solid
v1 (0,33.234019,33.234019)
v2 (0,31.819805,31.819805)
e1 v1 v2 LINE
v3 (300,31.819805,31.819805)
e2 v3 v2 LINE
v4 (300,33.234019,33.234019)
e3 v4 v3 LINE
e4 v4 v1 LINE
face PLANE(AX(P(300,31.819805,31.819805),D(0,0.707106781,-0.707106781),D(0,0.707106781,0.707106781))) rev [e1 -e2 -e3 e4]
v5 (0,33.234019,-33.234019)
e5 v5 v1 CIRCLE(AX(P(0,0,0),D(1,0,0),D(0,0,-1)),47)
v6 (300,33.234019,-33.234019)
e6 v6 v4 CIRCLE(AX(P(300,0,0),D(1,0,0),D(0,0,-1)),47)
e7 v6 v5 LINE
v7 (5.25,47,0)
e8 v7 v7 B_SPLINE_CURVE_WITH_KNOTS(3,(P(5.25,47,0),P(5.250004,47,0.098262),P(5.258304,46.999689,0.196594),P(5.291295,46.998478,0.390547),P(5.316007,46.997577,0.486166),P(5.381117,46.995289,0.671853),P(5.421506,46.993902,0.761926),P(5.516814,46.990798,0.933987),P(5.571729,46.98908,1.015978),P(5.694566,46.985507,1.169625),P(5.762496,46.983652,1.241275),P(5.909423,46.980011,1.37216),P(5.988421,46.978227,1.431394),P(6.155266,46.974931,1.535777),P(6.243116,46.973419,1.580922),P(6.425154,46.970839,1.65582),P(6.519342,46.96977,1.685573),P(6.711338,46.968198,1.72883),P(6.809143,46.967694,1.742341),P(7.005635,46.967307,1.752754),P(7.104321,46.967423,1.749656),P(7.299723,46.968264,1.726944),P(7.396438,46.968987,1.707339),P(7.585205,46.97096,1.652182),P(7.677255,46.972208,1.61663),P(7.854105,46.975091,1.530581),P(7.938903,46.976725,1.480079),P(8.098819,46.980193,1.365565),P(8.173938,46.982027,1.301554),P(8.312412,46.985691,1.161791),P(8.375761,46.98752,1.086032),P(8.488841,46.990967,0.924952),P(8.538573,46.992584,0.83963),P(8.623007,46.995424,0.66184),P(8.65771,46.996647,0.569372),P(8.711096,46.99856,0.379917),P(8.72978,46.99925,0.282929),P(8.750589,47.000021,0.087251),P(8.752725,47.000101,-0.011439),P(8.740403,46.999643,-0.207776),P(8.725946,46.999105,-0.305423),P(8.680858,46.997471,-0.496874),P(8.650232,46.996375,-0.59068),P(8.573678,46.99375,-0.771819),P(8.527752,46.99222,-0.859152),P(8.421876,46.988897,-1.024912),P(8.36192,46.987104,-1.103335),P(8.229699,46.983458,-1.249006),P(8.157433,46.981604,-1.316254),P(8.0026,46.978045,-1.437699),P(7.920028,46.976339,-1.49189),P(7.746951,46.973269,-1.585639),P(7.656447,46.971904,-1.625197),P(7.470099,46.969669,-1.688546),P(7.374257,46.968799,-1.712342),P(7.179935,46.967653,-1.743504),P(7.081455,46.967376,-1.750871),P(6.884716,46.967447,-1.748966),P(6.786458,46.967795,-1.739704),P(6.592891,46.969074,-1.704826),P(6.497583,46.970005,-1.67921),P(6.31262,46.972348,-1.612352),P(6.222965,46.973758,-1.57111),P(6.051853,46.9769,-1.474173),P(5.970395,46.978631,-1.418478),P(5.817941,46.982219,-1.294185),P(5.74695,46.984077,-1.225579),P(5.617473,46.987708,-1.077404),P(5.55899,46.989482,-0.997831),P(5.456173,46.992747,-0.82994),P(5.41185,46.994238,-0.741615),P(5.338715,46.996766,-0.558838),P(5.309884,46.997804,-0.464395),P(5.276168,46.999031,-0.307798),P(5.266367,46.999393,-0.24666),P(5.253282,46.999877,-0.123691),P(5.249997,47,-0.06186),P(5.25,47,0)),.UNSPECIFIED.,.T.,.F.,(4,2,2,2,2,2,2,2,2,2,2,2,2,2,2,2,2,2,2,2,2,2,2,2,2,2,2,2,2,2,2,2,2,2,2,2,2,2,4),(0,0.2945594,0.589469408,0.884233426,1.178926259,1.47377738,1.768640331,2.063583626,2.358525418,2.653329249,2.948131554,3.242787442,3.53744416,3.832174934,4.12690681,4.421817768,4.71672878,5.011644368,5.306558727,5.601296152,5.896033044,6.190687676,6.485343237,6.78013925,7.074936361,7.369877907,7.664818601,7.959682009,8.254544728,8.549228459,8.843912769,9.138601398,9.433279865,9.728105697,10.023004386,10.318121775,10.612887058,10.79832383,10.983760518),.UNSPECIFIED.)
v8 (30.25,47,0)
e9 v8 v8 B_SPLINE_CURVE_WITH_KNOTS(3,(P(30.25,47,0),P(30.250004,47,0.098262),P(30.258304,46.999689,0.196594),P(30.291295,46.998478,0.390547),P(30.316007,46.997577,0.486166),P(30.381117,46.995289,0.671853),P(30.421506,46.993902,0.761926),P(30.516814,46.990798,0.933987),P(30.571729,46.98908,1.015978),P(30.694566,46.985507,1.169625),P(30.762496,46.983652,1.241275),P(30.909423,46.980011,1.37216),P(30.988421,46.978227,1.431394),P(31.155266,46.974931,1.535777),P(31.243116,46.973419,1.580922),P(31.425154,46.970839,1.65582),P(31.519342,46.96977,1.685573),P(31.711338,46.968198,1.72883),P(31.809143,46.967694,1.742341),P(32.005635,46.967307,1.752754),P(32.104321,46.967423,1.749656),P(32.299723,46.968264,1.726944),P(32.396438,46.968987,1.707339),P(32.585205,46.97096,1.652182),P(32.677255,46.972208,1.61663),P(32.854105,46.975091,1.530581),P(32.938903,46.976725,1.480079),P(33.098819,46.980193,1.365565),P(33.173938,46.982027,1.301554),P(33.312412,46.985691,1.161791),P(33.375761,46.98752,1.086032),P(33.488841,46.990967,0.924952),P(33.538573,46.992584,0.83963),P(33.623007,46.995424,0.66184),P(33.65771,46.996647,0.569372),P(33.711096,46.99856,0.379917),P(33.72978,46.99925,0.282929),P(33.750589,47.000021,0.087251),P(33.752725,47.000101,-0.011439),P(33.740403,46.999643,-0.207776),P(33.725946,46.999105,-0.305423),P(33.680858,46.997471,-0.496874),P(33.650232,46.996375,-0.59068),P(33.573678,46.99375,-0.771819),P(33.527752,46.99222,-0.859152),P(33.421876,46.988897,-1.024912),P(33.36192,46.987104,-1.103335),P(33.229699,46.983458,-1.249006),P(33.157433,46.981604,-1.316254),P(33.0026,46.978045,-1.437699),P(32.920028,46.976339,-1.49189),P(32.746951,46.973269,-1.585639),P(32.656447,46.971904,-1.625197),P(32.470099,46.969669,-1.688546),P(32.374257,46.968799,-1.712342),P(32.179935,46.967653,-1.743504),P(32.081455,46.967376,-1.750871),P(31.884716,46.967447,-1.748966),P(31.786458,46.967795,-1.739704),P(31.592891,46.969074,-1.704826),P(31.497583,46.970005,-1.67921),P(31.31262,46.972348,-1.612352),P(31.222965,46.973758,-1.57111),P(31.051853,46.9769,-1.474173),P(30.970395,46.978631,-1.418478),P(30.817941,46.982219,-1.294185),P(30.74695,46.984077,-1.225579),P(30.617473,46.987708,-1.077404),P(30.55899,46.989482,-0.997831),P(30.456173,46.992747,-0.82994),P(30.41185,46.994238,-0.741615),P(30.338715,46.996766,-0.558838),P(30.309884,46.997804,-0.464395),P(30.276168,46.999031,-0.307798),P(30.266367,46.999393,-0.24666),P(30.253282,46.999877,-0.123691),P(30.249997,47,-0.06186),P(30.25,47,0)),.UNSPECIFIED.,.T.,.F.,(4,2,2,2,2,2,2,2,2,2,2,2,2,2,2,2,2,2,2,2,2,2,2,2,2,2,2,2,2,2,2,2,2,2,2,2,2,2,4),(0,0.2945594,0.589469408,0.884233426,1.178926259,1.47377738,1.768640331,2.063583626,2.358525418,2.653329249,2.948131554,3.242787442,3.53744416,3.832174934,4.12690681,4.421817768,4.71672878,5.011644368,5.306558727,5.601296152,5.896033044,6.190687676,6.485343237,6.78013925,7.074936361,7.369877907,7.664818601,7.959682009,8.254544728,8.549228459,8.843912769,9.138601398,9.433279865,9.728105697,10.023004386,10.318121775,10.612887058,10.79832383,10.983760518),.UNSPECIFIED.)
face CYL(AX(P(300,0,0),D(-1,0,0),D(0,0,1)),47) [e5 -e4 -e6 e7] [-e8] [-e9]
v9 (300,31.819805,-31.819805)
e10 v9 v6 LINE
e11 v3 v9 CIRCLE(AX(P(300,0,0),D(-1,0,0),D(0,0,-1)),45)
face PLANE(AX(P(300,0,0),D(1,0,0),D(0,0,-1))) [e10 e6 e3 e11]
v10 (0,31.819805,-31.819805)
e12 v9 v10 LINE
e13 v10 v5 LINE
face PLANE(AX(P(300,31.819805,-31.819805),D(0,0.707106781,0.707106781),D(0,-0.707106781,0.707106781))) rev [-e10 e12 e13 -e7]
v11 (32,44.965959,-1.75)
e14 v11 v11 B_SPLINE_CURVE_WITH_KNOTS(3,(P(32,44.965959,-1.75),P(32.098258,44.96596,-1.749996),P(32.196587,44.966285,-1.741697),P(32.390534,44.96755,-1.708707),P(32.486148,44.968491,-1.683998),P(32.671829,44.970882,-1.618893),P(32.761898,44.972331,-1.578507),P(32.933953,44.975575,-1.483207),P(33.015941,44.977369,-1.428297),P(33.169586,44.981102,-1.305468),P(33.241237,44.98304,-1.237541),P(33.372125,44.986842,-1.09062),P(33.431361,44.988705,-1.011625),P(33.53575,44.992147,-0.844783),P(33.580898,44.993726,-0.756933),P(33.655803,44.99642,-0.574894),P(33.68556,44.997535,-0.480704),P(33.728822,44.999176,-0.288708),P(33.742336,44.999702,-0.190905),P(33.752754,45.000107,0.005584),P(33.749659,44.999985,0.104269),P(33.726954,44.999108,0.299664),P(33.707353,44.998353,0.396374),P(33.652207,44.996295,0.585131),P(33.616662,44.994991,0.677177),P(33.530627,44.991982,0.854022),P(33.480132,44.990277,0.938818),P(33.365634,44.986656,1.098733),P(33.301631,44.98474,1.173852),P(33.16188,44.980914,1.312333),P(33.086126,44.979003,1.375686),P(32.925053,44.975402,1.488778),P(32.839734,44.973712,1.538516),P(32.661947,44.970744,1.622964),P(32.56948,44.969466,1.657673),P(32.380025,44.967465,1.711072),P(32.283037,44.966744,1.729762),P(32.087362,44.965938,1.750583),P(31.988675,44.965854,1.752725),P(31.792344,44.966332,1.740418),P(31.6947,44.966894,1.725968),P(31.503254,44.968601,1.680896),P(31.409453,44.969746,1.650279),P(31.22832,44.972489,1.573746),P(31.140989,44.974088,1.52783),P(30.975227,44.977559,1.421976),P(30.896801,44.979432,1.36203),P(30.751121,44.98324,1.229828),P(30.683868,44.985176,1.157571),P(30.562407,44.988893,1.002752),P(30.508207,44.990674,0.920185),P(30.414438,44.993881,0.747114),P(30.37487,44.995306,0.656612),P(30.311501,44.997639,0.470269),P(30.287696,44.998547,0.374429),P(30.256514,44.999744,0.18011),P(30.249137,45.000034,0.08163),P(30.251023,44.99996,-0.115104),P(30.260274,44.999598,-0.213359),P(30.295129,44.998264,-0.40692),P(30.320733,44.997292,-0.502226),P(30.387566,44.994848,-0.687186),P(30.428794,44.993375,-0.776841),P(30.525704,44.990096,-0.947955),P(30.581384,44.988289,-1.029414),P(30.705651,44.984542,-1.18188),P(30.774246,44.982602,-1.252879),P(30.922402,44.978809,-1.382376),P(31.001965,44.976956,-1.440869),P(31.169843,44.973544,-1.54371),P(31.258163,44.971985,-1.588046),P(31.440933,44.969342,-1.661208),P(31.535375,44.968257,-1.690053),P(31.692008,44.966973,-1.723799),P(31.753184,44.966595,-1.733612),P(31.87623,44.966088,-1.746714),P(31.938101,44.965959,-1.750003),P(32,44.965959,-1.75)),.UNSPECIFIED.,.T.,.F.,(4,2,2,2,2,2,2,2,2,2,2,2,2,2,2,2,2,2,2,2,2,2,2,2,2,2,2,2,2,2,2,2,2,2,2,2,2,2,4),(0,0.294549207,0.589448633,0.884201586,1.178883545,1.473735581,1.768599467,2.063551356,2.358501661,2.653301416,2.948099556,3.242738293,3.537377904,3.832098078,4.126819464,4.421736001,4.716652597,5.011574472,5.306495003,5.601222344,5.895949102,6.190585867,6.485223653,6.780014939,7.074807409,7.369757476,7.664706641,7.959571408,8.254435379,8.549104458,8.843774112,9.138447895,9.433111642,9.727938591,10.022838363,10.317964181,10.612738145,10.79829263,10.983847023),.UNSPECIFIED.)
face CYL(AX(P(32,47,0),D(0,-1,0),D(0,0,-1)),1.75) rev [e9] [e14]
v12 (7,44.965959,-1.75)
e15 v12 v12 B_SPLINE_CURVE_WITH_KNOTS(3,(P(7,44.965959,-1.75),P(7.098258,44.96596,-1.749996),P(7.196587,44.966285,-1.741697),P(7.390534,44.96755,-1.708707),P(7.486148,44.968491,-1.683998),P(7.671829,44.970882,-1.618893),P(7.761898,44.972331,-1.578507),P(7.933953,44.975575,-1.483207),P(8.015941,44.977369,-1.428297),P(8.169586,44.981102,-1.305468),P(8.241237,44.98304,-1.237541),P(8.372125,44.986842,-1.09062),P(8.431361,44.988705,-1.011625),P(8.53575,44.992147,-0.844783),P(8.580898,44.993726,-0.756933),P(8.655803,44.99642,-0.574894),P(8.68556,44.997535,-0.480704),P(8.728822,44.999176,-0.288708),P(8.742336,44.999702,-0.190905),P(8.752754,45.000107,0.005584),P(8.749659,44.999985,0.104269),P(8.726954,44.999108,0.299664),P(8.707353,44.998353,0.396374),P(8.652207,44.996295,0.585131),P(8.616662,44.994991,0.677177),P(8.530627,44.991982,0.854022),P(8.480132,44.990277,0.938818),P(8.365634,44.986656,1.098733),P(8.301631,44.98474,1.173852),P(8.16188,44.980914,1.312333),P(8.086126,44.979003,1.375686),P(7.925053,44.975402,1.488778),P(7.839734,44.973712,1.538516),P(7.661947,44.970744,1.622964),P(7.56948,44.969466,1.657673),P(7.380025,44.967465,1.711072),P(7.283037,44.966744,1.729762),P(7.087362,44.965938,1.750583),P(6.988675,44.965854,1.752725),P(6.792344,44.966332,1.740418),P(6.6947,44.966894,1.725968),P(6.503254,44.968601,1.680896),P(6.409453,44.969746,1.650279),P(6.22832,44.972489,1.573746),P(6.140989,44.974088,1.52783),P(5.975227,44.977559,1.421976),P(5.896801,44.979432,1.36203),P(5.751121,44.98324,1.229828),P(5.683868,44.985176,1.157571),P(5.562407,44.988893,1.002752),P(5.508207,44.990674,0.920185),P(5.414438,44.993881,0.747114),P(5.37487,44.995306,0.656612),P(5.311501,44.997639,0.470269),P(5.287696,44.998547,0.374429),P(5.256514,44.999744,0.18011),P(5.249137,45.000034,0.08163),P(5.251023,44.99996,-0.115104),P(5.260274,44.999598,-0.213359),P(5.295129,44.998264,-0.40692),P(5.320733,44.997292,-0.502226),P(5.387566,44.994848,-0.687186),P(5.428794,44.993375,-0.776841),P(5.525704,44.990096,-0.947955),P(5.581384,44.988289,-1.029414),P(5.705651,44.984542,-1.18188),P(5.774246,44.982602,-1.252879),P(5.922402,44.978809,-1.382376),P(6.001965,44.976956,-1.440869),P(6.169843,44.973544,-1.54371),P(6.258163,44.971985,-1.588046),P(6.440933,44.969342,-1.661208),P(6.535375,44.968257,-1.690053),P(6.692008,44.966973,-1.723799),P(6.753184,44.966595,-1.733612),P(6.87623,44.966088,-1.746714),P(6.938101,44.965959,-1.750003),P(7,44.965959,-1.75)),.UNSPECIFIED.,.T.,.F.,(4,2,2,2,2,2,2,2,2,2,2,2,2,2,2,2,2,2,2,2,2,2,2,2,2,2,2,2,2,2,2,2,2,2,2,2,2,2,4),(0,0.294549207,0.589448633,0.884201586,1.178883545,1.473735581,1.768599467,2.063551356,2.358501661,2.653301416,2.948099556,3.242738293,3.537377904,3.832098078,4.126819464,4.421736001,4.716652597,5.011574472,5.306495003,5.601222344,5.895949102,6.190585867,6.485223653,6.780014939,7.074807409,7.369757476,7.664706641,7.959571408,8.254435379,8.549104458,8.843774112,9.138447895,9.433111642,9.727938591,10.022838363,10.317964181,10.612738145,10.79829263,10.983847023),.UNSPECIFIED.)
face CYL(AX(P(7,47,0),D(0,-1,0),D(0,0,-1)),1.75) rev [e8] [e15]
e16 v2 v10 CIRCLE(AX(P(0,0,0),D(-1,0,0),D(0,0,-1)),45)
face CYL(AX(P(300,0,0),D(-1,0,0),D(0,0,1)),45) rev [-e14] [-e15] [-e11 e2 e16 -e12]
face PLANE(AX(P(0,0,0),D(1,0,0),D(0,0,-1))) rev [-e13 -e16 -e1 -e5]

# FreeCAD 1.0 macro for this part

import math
import FreeCAD as App
import Part
import Sketcher
from FreeCAD import Vector
Q = App.Units.Quantity

doc = App.newDocument("Part")
body = doc.addObject("PartDesign::Body", "Body")

sketch1 = doc.addObject("Sketcher::SketchObject", "Sketch")
body.addObject(sketch1)
sketch1.AttachmentSupport = (doc.YZ_Plane, [""])
sketch1.MapMode = "FlatFace"
sketch1.addGeometry([
    Part.LineSegment(Vector(31.8, -31.8, 0), Vector(33.2, -33.2, 0)),
    Part.ArcOfCircle(Part.Circle(Vector(0, 0, 0), Vector(0, 0, 1), 47), math.radians(-45), math.radians(45)),
    Part.LineSegment(Vector(33.2, 33.2, 0), Vector(31.8, 31.8, 0)),
    Part.ArcOfCircle(Part.Circle(Vector(0, 0, 0), Vector(0, 0, 1), 45), math.radians(-45), math.radians(45)),
], False)
sketch1.addConstraint([
    Sketcher.Constraint("Coincident", 0, 2, 1, 1),
    Sketcher.Constraint("Coincident", 1, 2, 2, 1),
    Sketcher.Constraint("Coincident", 2, 2, 3, 2),
    Sketcher.Constraint("Coincident", 3, 1, 0, 1),
    Sketcher.Constraint("Coincident", 1, 3, -1, 1),
    Sketcher.Constraint("Coincident", 3, 3, -1, 1),
    Sketcher.Constraint("Perpendicular", 0, 2),
    Sketcher.Constraint("Vertical", 0, 2, 1, 2),
    Sketcher.Constraint("Vertical", 2, 2, 3, 1),
    Sketcher.Constraint("Radius", 1, Q("47 mm")),
    Sketcher.Constraint("Radius", 3, Q("45 mm")),
    Sketcher.Constraint("DistanceX", -1, 1, 0, 2, Q("33.234019 mm")),
])
pad1 = doc.addObject("PartDesign::Pad", "Pad")
body.addObject(pad1)
pad1.Profile = sketch1
pad1.Length = 300

sketch2 = doc.addObject("Sketcher::SketchObject", "Sketch001")
body.addObject(sketch2)
sketch2.AttachmentSupport = (doc.XZ_Plane, [""])
sketch2.MapMode = "FlatFace"
sketch2.addGeometry([
    Part.Circle(Vector(7, 0, 0), Vector(0, 0, 1), 1.8),
    Part.Circle(Vector(32, 0, 0), Vector(0, 0, 1), 1.8),
], False)
sketch2.addConstraint([
    Sketcher.Constraint("Equal", 0, 1),
    Sketcher.Constraint("PointOnObject", 0, 3, -1),
    Sketcher.Constraint("PointOnObject", 1, 3, -1),
    Sketcher.Constraint("Diameter", 0, Q("3.5 mm")),
    Sketcher.Constraint("DistanceX", -1, 1, 0, 3, Q("7 mm")),
    Sketcher.Constraint("DistanceX", -1, 1, 1, 3, Q("32 mm")),
])
pocket1 = doc.addObject("PartDesign::Pocket", "Pocket")
body.addObject(pocket1)
pocket1.Profile = sketch2
pocket1.Type = "ThroughAll"

doc.recompute()
